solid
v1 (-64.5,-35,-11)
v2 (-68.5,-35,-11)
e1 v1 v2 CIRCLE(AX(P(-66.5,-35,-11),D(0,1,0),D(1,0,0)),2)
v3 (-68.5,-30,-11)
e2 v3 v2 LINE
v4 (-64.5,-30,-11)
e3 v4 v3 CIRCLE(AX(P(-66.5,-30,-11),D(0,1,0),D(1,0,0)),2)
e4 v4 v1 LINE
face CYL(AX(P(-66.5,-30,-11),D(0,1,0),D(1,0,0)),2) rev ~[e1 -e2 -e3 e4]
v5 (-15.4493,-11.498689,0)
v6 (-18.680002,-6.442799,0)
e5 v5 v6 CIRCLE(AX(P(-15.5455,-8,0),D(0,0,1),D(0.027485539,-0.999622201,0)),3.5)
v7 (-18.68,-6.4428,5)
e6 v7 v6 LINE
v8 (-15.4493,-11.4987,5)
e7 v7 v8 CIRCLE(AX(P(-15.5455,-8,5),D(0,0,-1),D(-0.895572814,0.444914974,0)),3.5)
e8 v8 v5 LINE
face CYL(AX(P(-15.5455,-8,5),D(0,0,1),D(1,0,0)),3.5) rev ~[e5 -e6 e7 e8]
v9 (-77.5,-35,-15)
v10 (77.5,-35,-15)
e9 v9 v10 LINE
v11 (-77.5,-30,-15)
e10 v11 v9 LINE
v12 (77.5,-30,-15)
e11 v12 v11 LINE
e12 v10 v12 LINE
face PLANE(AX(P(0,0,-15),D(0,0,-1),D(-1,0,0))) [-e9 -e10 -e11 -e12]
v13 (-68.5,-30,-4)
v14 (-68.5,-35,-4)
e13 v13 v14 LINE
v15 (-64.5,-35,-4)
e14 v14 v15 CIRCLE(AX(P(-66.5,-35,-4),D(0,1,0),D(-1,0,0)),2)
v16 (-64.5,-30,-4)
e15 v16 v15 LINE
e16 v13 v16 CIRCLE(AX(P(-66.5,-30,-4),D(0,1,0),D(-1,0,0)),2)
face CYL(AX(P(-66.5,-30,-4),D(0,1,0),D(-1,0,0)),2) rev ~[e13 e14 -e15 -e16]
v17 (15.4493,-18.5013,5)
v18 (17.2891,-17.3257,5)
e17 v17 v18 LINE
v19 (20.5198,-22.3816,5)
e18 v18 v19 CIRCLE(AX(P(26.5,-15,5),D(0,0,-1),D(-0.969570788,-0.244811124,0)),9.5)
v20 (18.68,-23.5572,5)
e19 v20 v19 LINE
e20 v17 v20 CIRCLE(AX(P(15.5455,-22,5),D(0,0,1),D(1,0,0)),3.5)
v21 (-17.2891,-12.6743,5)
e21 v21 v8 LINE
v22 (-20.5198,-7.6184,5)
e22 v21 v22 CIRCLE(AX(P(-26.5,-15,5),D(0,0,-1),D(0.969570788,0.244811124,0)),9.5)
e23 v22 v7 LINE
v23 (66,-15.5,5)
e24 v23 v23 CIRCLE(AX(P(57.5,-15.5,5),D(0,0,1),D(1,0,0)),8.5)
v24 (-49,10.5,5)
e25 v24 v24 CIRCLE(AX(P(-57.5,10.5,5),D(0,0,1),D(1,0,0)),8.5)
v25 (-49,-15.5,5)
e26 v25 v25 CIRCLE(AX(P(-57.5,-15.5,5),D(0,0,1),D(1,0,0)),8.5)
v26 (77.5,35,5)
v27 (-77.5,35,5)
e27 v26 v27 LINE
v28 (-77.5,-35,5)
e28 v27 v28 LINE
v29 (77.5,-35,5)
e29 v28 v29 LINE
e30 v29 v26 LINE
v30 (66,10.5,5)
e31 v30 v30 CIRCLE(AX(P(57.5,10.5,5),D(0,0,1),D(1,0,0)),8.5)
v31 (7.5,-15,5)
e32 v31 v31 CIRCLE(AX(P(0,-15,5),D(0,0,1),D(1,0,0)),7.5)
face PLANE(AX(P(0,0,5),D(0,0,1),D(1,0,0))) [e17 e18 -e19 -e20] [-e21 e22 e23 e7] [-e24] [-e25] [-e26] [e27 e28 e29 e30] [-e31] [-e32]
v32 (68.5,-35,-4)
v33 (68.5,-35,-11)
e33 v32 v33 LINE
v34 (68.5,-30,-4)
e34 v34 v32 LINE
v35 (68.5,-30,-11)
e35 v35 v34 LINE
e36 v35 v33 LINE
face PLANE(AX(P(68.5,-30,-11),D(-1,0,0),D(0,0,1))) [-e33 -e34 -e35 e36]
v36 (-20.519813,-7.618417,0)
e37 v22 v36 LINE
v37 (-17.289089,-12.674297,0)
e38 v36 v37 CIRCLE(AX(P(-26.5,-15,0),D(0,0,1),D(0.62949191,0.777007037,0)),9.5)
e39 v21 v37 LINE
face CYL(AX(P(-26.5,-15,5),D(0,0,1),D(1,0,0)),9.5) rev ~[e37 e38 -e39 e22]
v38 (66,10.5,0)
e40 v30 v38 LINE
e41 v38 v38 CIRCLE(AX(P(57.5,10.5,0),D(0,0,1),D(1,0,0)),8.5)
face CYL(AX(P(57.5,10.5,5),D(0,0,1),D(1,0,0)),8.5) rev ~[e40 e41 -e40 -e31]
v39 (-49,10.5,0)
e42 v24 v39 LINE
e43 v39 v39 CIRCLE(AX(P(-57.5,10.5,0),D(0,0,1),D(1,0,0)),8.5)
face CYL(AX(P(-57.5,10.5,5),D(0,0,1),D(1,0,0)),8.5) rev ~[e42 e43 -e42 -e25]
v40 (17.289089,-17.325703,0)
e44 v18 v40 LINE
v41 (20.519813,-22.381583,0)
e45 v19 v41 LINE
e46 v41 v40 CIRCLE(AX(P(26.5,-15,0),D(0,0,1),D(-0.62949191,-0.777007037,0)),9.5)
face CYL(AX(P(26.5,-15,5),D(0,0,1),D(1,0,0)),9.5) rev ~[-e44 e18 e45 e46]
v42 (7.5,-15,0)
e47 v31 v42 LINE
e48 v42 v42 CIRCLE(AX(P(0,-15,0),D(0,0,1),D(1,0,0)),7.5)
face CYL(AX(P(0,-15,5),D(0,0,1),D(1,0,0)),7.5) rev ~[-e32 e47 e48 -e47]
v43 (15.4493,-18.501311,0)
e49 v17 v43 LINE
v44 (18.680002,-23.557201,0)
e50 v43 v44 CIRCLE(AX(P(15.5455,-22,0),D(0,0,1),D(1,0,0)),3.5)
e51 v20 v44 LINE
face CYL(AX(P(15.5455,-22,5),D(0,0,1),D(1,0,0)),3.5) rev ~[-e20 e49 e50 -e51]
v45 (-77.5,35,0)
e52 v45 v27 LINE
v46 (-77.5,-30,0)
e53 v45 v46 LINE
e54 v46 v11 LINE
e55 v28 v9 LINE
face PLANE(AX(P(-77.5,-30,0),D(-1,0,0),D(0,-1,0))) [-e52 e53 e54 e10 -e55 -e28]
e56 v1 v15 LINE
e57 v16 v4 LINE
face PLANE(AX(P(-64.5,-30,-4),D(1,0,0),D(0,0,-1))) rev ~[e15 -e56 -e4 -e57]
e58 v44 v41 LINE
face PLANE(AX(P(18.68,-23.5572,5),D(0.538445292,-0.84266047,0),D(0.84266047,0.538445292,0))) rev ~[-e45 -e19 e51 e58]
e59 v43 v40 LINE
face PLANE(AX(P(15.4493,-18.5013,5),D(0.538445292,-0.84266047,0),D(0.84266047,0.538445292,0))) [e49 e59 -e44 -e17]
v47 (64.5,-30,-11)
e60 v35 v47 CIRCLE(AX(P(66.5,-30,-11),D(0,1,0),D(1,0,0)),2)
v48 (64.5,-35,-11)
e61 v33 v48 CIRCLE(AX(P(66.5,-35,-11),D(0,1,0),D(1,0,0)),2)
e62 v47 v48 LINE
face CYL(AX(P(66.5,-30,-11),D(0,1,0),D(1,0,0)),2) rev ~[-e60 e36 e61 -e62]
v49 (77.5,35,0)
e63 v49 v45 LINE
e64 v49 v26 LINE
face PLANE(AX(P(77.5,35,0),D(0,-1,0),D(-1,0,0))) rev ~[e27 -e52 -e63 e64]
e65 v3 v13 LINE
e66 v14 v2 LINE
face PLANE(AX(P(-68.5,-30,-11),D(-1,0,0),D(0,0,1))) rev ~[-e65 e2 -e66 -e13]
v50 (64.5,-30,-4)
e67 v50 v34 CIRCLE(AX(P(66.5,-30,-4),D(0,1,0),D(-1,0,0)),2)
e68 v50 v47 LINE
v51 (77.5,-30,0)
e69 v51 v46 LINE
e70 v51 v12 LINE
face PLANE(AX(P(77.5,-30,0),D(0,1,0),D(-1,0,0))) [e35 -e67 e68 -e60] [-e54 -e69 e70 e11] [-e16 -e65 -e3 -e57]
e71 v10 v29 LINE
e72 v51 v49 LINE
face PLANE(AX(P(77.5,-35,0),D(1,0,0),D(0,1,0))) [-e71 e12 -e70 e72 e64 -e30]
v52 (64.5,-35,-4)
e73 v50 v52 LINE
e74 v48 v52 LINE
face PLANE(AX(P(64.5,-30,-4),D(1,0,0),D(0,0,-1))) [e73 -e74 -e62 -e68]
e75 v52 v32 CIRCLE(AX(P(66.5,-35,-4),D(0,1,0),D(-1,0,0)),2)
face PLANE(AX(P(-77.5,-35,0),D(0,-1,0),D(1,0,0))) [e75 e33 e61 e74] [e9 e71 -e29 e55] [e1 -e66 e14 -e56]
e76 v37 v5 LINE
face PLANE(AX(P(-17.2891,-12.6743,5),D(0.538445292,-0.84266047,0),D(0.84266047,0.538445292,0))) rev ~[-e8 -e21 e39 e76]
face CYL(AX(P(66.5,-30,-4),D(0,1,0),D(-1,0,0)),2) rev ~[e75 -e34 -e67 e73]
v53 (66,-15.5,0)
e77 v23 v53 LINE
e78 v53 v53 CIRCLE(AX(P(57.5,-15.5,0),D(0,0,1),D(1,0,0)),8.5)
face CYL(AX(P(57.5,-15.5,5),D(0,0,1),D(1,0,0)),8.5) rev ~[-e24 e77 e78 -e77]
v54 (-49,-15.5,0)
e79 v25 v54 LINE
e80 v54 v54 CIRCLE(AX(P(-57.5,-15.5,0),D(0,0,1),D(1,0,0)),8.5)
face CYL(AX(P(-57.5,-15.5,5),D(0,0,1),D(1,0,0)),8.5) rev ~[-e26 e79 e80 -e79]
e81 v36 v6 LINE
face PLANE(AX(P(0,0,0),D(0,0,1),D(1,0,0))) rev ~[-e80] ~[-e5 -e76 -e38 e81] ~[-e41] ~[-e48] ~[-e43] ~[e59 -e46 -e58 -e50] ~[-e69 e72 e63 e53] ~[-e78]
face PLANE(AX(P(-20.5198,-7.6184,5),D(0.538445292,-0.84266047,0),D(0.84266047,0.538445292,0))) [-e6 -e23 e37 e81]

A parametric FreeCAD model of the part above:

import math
import FreeCAD as App
import Part
import Sketcher

V = App.Vector
Q = App.Units.Quantity

doc = App.newDocument("Part")
body = doc.addObject("PartDesign::Body", "Body")

sketch1 = body.newObject("Sketcher::SketchObject", "Sketch")
sketch1.AttachmentSupport = (doc.getObject("XY_Plane"), [""])
sketch1.MapMode = "FlatFace"
sketch1.addGeometry([
    Part.LineSegment(V(-78, 35, 0), V(-78, -35, 0)),
    Part.LineSegment(V(-78, -35, 0), V(78, -35, 0)),
    Part.LineSegment(V(78, -35, 0), V(78, 35, 0)),
    Part.LineSegment(V(78, 35, 0), V(-78, 35, 0)),
], False)
sketch1.addConstraint([
    Sketcher.Constraint("Coincident", 0, 2, 1, 1),
    Sketcher.Constraint("Coincident", 1, 2, 2, 1),
    Sketcher.Constraint("Coincident", 2, 2, 3, 1),
    Sketcher.Constraint("Coincident", 3, 2, 0, 1),
    Sketcher.Constraint("Vertical", 0),
    Sketcher.Constraint("Horizontal", 1),
    Sketcher.Constraint("Vertical", 2),
    Sketcher.Constraint("Horizontal", 3),
    Sketcher.Constraint("Symmetric", 0, 2, 2, 2, -1, 1),
    Sketcher.Constraint("DistanceX", 1, 1, 1, 2, Q("155 mm")),
    Sketcher.Constraint("DistanceY", 0, 2, 0, 1, Q("70 mm")),
])
pad1 = body.newObject("PartDesign::Pad", "Pad")
pad1.Profile = sketch1
pad1.Length = 5

sketch2 = body.newObject("Sketcher::SketchObject", "Sketch001")
sketch2.AttachmentSupport = (doc.getObject("XY_Plane"), [""])
sketch2.MapMode = "FlatFace"
sketch2.AttachmentOffset = App.Placement(V(0, 0, 5), App.Rotation())
sketch2.addGeometry([
    Part.Circle(V(0, -15, 0), V(0, 0, 1), 7.5),
    Part.Circle(V(26.5, -15, 0), V(0, 0, 1), 9.5),
    Part.Circle(V(15.5, -22, 0), V(0, 0, 1), 3.5),
    Part.Circle(V(-26.5, -15, 0), V(0, 0, 1), 9.5),
    Part.Circle(V(-15.5, -8, 0), V(0, 0, 1), 3.5),
], False)
sketch2.addConstraint([
    Sketcher.Constraint("Equal", 1, 3),
    Sketcher.Constraint("Equal", 2, 4),
    Sketcher.Constraint("Symmetric", 1, 3, 3, 3, -2),
    Sketcher.Constraint("PointOnObject", 0, 3, -2),
    Sketcher.Constraint("Horizontal", 0, 3, 1, 3),
    Sketcher.Constraint("Diameter", 0, Q("15 mm")),
    Sketcher.Constraint("Diameter", 1, Q("19 mm")),
    Sketcher.Constraint("Diameter", 2, Q("7 mm")),
    Sketcher.Constraint("DistanceY", 0, 3, -1, 1, Q("15 mm")),
    Sketcher.Constraint("DistanceY", 2, 3, 1, 3, Q("7 mm")),
    Sketcher.Constraint("DistanceY", 3, 3, 4, 3, Q("7 mm")),
    Sketcher.Constraint("DistanceX", -1, 1, 1, 3, Q("26.5 mm")),
    Sketcher.Constraint("DistanceX", 4, 3, 2, 3, Q("31.091 mm")),
    Sketcher.Constraint("DistanceX", -1, 1, 2, 3, Q("15.5455 mm")),
])
pocket1 = body.newObject("PartDesign::Pocket", "Pocket")
pocket1.Profile = sketch2
pocket1.Type = "ThroughAll"

sketch3 = body.newObject("Sketcher::SketchObject", "Sketch002")
sketch3.AttachmentSupport = (doc.getObject("XY_Plane"), [""])
sketch3.MapMode = "FlatFace"
sketch3.AttachmentOffset = App.Placement(V(0, 0, 5), App.Rotation())
sketch3.addGeometry([
    Part.ArcOfCircle(Part.Circle(V(-26.5, -15, 0), V(0, 0, 1), 9.5), math.radians(14.17), math.radians(32.58)),
    Part.LineSegment(V(-17.3, -12.7, 0), V(-15.4, -11.5, 0)),
    Part.ArcOfCircle(Part.Circle(V(-15.5, -8, 0), V(0, 0, 1), 3.5), math.radians(-147), math.radians(-88)),
    Part.LineSegment(V(-18.7, -6.4, 0), V(-20.5, -7.6, 0)),
    Part.ArcOfCircle(Part.Circle(V(-26.5, -15, 0), V(0, 0, 1), 9.5), math.radians(32.58), math.radians(50.99)),
    Part.ArcOfCircle(Part.Circle(V(-15.5, -8, 0), V(0, 0, 1), 3.5), math.radians(154), math.radians(213)),
    Part.ArcOfCircle(Part.Circle(V(26.5, -15, 0), V(0, 0, 1), 9.5), math.radians(-165.83), math.radians(-147.42)),
    Part.LineSegment(V(17.3, -17.3, 0), V(15.4, -18.5, 0)),
    Part.ArcOfCircle(Part.Circle(V(15.5, -22, 0), V(0, 0, 1), 3.5), math.radians(33), math.radians(92)),
    Part.LineSegment(V(18.7, -23.6, 0), V(20.5, -22.4, 0)),
    Part.ArcOfCircle(Part.Circle(V(26.5, -15, 0), V(0, 0, 1), 9.5), math.radians(-147.42), math.radians(-129.01)),
    Part.ArcOfCircle(Part.Circle(V(15.5, -22, 0), V(0, 0, 1), 3.5), math.radians(-26), math.radians(33)),
], False)
sketch3.addConstraint([
    Sketcher.Constraint("Coincident", 0, 1, 1, 1),
    Sketcher.Constraint("Coincident", 1, 2, 2, 2),
    Sketcher.Constraint("Tangent", 2, 1, 0, 2),
    Sketcher.Constraint("Coincident", 3, 2, 4, 2),
    Sketcher.Constraint("Tangent", 4, 1, 5, 2),
    Sketcher.Constraint("Coincident", 5, 1, 3, 1),
    Sketcher.Constraint("Coincident", 6, 1, 7, 1),
    Sketcher.Constraint("Coincident", 7, 2, 8, 2),
    Sketcher.Constraint("Tangent", 8, 1, 6, 2),
    Sketcher.Constraint("Coincident", 9, 2, 10, 2),
    Sketcher.Constraint("Tangent", 10, 1, 11, 2),
    Sketcher.Constraint("Coincident", 11, 1, 9, 1),
    Sketcher.Constraint("Coincident", 4, 3, 0, 3),
    Sketcher.Constraint("Coincident", 5, 3, 2, 3),
    Sketcher.Constraint("Coincident", 10, 3, 6, 3),
    Sketcher.Constraint("Coincident", 11, 3, 8, 3),
    Sketcher.Constraint("Equal", 0, 4),
    Sketcher.Constraint("Equal", 4, 6),
    Sketcher.Constraint("Equal", 5, 8),
    Sketcher.Constraint("Equal", 6, 10),
    Sketcher.Constraint("Symmetric", 0, 3, 6, 3, -2),
    Sketcher.Constraint("Parallel", 1, 3),
    Sketcher.Constraint("Parallel", 3, 7),
    Sketcher.Constraint("Parallel", 7, 9),
    Sketcher.Constraint("Equal", 1, 3),
    Sketcher.Constraint("Equal", 3, 7),
    Sketcher.Constraint("Equal", 7, 9),
    Sketcher.Constraint("Radius", 0, Q("9.5 mm")),
    Sketcher.Constraint("Radius", 2, Q("3.5 mm")),
    Sketcher.Constraint("DistanceY", 0, 3, -1, 1, Q("15 mm")),
    Sketcher.Constraint("DistanceY", 2, 3, -1, 1, Q("8 mm")),
    Sketcher.Constraint("DistanceY", 8, 3, -1, 1, Q("22 mm")),
    Sketcher.Constraint("DistanceX", 0, 3, 6, 3, Q("53 mm")),
    Sketcher.Constraint("DistanceX", 5, 1, -1, 1, Q("18.68 mm")),
    Sketcher.Constraint("DistanceX", 0, 1, -1, 1, Q("17.289 mm")),
])
pocket2 = body.newObject("PartDesign::Pocket", "Pocket001")
pocket2.Profile = sketch3
pocket2.Type = "ThroughAll"

sketch4 = body.newObject("Sketcher::SketchObject", "Sketch003")
sketch4.AttachmentSupport = (doc.getObject("XY_Plane"), [""])
sketch4.MapMode = "FlatFace"
sketch4.AttachmentOffset = App.Placement(V(0, 0, 5), App.Rotation())
sketch4.addGeometry([
    Part.Circle(V(-58, 10, 0), V(0, 0, 1), 8),
    Part.Circle(V(-58, -16, 0), V(0, 0, 1), 8),
    Part.Circle(V(58, 10, 0), V(0, 0, 1), 8),
    Part.Circle(V(58, -16, 0), V(0, 0, 1), 8),
], False)
sketch4.addConstraint([
    Sketcher.Constraint("Equal", 0, 1),
    Sketcher.Constraint("Equal", 1, 2),
    Sketcher.Constraint("Equal", 2, 3),
    Sketcher.Constraint("Symmetric", 0, 3, 2, 3, -2),
    Sketcher.Constraint("Symmetric", 1, 3, 3, 3, -2),
    Sketcher.Constraint("Vertical", 0, 3, 1, 3),
    Sketcher.Constraint("Diameter", 0, Q("17 mm")),
    Sketcher.Constraint("DistanceY", 1, 3, 0, 3, Q("26 mm")),
    Sketcher.Constraint("DistanceX", 0, 3, 2, 3, Q("115 mm")),
    Sketcher.Constraint("DistanceY", -1, 1, 0, 3, Q("10.5 mm")),
])
pocket3 = body.newObject("PartDesign::Pocket", "Pocket002")
pocket3.Profile = sketch4
pocket3.Type = "ThroughAll"

sketch5 = body.newObject("Sketcher::SketchObject", "Sketch004")
sketch5.AttachmentSupport = (doc.getObject("XY_Plane"), [""])
sketch5.MapMode = "FlatFace"
sketch5.addGeometry([
    Part.LineSegment(V(78, -35, 0), V(-78, -35, 0)),
    Part.LineSegment(V(-78, -35, 0), V(-78, -30, 0)),
    Part.LineSegment(V(-78, -30, 0), V(78, -30, 0)),
    Part.LineSegment(V(78, -30, 0), V(78, -35, 0)),
], False)
sketch5.addConstraint([
    Sketcher.Constraint("Coincident", 0, 2, 1, 1),
    Sketcher.Constraint("Coincident", 1, 2, 2, 1),
    Sketcher.Constraint("Coincident", 2, 2, 3, 1),
    Sketcher.Constraint("Coincident", 3, 2, 0, 1),
    Sketcher.Constraint("Horizontal", 0),
    Sketcher.Constraint("Vertical", 1),
    Sketcher.Constraint("Horizontal", 2),
    Sketcher.Constraint("Vertical", 3),
    Sketcher.Constraint("DistanceY", 1, 1, 1, 2, Q("5 mm")),
    Sketcher.Constraint("DistanceX", 0, 2, 0, 1, Q("155 mm")),
    Sketcher.Constraint("DistanceY", 0, 2, -1, 1, Q("35 mm")),
    Sketcher.Constraint("DistanceX", 0, 2, -1, 1, Q("77.5 mm")),
])
pad2 = body.newObject("PartDesign::Pad", "Pad001")
pad2.Profile = sketch5
pad2.Length = 15
pad2.Reversed = True

sketch6 = body.newObject("Sketcher::SketchObject", "Sketch005")
sketch6.AttachmentSupport = (doc.getObject("XZ_Plane"), [""])
sketch6.MapMode = "FlatFace"
sketch6.AttachmentOffset = App.Placement(V(0, 0, 30), App.Rotation())
sketch6.addGeometry([
    Part.ArcOfCircle(Part.Circle(V(66.5, -4, 0), V(0, 0, 1), 2), math.radians(0), math.radians(180)),
    Part.LineSegment(V(68.5, -4, 0), V(68.5, -11, 0)),
    Part.ArcOfCircle(Part.Circle(V(66.5, -11, 0), V(0, 0, 1), 2), math.radians(180), math.radians(360)),
    Part.LineSegment(V(64.5, -11, 0), V(64.5, -4, 0)),
    Part.LineSegment(V(-68.5, -11, 0), V(-68.5, -4, 0)),
    Part.ArcOfCircle(Part.Circle(V(-66.5, -4, 0), V(0, 0, 1), 2), math.radians(0), math.radians(180)),
    Part.LineSegment(V(-64.5, -4, 0), V(-64.5, -11, 0)),
    Part.ArcOfCircle(Part.Circle(V(-66.5, -11, 0), V(0, 0, 1), 2), math.radians(180), math.radians(360)),
], False)
sketch6.addConstraint([
    Sketcher.Constraint("Tangent", 0, 1, 1, 1),
    Sketcher.Constraint("Tangent", 1, 2, 2, 2),
    Sketcher.Constraint("Tangent", 2, 1, 3, 1),
    Sketcher.Constraint("Tangent", 3, 2, 0, 2),
    Sketcher.Constraint("Tangent", 4, 2, 5, 2),
    Sketcher.Constraint("Tangent", 5, 1, 6, 1),
    Sketcher.Constraint("Tangent", 6, 2, 7, 2),
    Sketcher.Constraint("Tangent", 7, 1, 4, 1),
    Sketcher.Constraint("Vertical", 1),
    Sketcher.Constraint("Vertical", 3),
    Sketcher.Constraint("Vertical", 4),
    Sketcher.Constraint("Vertical", 6),
    Sketcher.Constraint("Equal", 2, 5),
    Sketcher.Constraint("Symmetric", 0, 3, 5, 3, -2),
    Sketcher.Constraint("Horizontal", 2, 3, 7, 3),
    Sketcher.Constraint("Radius", 0, Q("2 mm")),
    Sketcher.Constraint("DistanceY", 1, 2, 1, 1, Q("7 mm")),
    Sketcher.Constraint("DistanceY", 0, 3, -1, 1, Q("4 mm")),
    Sketcher.Constraint("DistanceX", 5, 3, 0, 3, Q("133 mm")),
])
pocket4 = body.newObject("PartDesign::Pocket", "Pocket003")
pocket4.Profile = sketch6
pocket4.Type = "ThroughAll"
pocket4.Reversed = True

doc.recompute()
